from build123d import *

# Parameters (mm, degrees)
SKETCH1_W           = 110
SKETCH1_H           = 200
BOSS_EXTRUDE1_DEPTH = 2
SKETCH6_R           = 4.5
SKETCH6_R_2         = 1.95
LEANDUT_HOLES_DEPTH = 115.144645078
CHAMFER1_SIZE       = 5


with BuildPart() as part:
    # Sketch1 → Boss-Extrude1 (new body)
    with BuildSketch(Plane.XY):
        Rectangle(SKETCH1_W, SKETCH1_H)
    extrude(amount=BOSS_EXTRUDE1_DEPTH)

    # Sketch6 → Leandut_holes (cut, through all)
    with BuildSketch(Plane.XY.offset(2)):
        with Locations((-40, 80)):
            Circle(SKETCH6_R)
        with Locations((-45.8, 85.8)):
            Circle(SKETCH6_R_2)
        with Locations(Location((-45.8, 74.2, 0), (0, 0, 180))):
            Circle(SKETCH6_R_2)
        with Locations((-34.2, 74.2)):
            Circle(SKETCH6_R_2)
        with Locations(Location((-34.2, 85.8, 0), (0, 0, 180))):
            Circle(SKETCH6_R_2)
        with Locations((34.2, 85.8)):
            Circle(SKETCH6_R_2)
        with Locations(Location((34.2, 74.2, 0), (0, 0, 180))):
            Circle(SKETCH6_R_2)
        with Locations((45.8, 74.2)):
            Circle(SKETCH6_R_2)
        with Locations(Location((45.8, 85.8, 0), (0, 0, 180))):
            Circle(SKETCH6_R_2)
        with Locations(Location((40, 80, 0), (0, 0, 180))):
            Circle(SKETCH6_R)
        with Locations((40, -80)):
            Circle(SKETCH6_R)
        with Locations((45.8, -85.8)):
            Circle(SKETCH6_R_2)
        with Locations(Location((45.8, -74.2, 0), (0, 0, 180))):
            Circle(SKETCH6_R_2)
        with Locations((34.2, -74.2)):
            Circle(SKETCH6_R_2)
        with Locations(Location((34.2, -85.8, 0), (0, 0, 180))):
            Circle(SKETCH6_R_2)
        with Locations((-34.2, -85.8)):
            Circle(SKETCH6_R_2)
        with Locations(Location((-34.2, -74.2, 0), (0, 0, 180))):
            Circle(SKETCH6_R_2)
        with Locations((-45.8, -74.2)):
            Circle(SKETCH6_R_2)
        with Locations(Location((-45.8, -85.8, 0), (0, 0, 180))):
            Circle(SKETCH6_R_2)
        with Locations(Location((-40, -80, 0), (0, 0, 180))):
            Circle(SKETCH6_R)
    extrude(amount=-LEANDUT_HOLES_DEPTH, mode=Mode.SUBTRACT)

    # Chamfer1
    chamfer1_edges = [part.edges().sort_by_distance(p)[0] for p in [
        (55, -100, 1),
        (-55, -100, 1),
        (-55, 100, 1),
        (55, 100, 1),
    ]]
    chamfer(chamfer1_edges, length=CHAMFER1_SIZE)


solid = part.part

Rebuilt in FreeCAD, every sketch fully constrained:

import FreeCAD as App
import Part
import Sketcher
from FreeCAD import Vector


def edges_at(feature, points):
    """Names of the edges that pass closest to the given points."""
    edges = feature.Shape.Edges
    near = lambda p: min(range(len(edges)), key=lambda i: edges[i].distToShape(Part.Vertex(*p))[0])
    return sorted({f"Edge{near(p) + 1}" for p in points})

doc = App.newDocument("Part")
params = doc.addObject("Spreadsheet::Sheet", "Params")
for row, (alias, value) in enumerate([
    ("sketch1_width", "110 mm"),
    ("sketch1_height", "200 mm"),
    ("pad1_length", "2 mm"),
    ("sketch2_diameter", "9 mm"),
    ("sketch2_diameter2", "3.9 mm"),
    ("chamfer_size", "5 mm"),
], start=1):
    params.set(f"A{row}", alias)
    params.set(f"B{row}", "=" + value)
    params.setAlias(f"B{row}", alias)

body = doc.addObject("PartDesign::Body", "Body")

# Sketch on XY plane
sketch1 = body.newObject("Sketcher::SketchObject", "Sketch")
sketch1.AttachmentSupport = (doc.getObject("XY_Plane"), [""])
sketch1.MapMode = "FlatFace"
sketch1.addGeometry([
    Part.LineSegment(Vector(-55, 100, 0), Vector(-55, -100, 0)),
    Part.LineSegment(Vector(-55, -100, 0), Vector(55, -100, 0)),
    Part.LineSegment(Vector(55, -100, 0), Vector(55, 100, 0)),
    Part.LineSegment(Vector(55, 100, 0), Vector(-55, 100, 0)),
], False)
sketch1.addConstraint([
    Sketcher.Constraint("Coincident", 0, 2, 1, 1),
    Sketcher.Constraint("Coincident", 1, 2, 2, 1),
    Sketcher.Constraint("Coincident", 2, 2, 3, 1),
    Sketcher.Constraint("Coincident", 3, 2, 0, 1),
    Sketcher.Constraint("Vertical", 0),
    Sketcher.Constraint("Horizontal", 1),
    Sketcher.Constraint("Vertical", 2),
    Sketcher.Constraint("Horizontal", 3),
    Sketcher.Constraint("Symmetric", 0, 2, 2, 2, -1, 1),
    Sketcher.Constraint("DistanceX", 1, 1, 1, 2, 110.0),
    Sketcher.Constraint("DistanceY", 0, 2, 0, 1, 200.0),
])
sketch1.setExpression("Constraints[9]", "Params.sketch1_width")
sketch1.setExpression("Constraints[10]", "Params.sketch1_height")
pad1 = body.newObject("PartDesign::Pad", "Pad")
pad1.Profile = sketch1
pad1.setExpression("Length", "Params.pad1_length")

# Sketch on XY plane
sketch2 = body.newObject("Sketcher::SketchObject", "Sketch001")
sketch2.AttachmentSupport = (doc.getObject("XY_Plane"), [""])
sketch2.MapMode = "FlatFace"
sketch2.AttachmentOffset = App.Placement(Vector(0, 0, 2), App.Rotation())
sketch2.addGeometry([
    Part.Circle(Vector(-40, 80, 0), Vector(0, 0, 1), 4.5),  # 0
    Part.Circle(Vector(-45.8, 85.8, 0), Vector(0, 0, 1), 1.95),  # 1
    Part.Circle(Vector(-45.8, 74.2, 0), Vector(0, 0, 1), 1.95),  # 2
    Part.Circle(Vector(-34.2, 74.2, 0), Vector(0, 0, 1), 1.95),  # 3
    Part.Circle(Vector(-34.2, 85.8, 0), Vector(0, 0, 1), 1.95),  # 4
    Part.Circle(Vector(34.2, 85.8, 0), Vector(0, 0, 1), 1.95),  # 5
    Part.Circle(Vector(34.2, 74.2, 0), Vector(0, 0, 1), 1.95),  # 6
    Part.Circle(Vector(45.8, 74.2, 0), Vector(0, 0, 1), 1.95),  # 7
    Part.Circle(Vector(45.8, 85.8, 0), Vector(0, 0, 1), 1.95),  # 8
    Part.Circle(Vector(40, 80, 0), Vector(0, 0, 1), 4.5),  # 9
    Part.Circle(Vector(40, -80, 0), Vector(0, 0, 1), 4.5),  # 10
    Part.Circle(Vector(45.8, -85.8, 0), Vector(0, 0, 1), 1.95),  # 11
    Part.Circle(Vector(45.8, -74.2, 0), Vector(0, 0, 1), 1.95),  # 12
    Part.Circle(Vector(34.2, -74.2, 0), Vector(0, 0, 1), 1.95),  # 13
    Part.Circle(Vector(34.2, -85.8, 0), Vector(0, 0, 1), 1.95),  # 14
    Part.Circle(Vector(-34.2, -85.8, 0), Vector(0, 0, 1), 1.95),  # 15
    Part.Circle(Vector(-34.2, -74.2, 0), Vector(0, 0, 1), 1.95),  # 16
    Part.Circle(Vector(-45.8, -74.2, 0), Vector(0, 0, 1), 1.95),  # 17
    Part.Circle(Vector(-45.8, -85.8, 0), Vector(0, 0, 1), 1.95),  # 18
    Part.Circle(Vector(-40, -80, 0), Vector(0, 0, 1), 4.5),  # 19
], False)
sketch2.addConstraint([
    Sketcher.Constraint("Equal", 1, 2),
    Sketcher.Constraint("Equal", 2, 3),
    Sketcher.Constraint("Equal", 3, 4),
    Sketcher.Constraint("Equal", 4, 5),
    Sketcher.Constraint("Equal", 5, 6),
    Sketcher.Constraint("Equal", 6, 7),
    Sketcher.Constraint("Equal", 7, 8),
    Sketcher.Constraint("Equal", 0, 9),
    Sketcher.Constraint("Equal", 9, 10),
    Sketcher.Constraint("Equal", 8, 11),
    Sketcher.Constraint("Equal", 11, 12),
    Sketcher.Constraint("Equal", 12, 13),
    Sketcher.Constraint("Equal", 13, 14),
    Sketcher.Constraint("Equal", 14, 15),
    Sketcher.Constraint("Equal", 15, 16),
    Sketcher.Constraint("Equal", 16, 17),
    Sketcher.Constraint("Equal", 17, 18),
    Sketcher.Constraint("Equal", 10, 19),
    Sketcher.Constraint("Symmetric", 0, 3, 10, 3, -1, 1),
    Sketcher.Constraint("Symmetric", 1, 3, 11, 3, -1, 1),
    Sketcher.Constraint("Symmetric", 2, 3, 12, 3, -1, 1),
    Sketcher.Constraint("Symmetric", 3, 3, 13, 3, -1, 1),
    Sketcher.Constraint("Symmetric", 4, 3, 14, 3, -1, 1),
    Sketcher.Constraint("Symmetric", 5, 3, 15, 3, -1, 1),
    Sketcher.Constraint("Symmetric", 6, 3, 16, 3, -1, 1),
    Sketcher.Constraint("Symmetric", 7, 3, 17, 3, -1, 1),
    Sketcher.Constraint("Symmetric", 8, 3, 18, 3, -1, 1),
    Sketcher.Constraint("Symmetric", 9, 3, 19, 3, -1, 1),
    Sketcher.Constraint("Symmetric", 4, 3, 5, 3, -2),
    Sketcher.Constraint("Symmetric", 3, 3, 6, 3, -2),
    Sketcher.Constraint("Symmetric", 2, 3, 7, 3, -2),
    Sketcher.Constraint("Symmetric", 1, 3, 8, 3, -2),
    Sketcher.Constraint("Symmetric", 0, 3, 9, 3, -2),
    Sketcher.Constraint("Horizontal", 2, 3, 3, 3),
    Sketcher.Constraint("Horizontal", 1, 3, 4, 3),
    Sketcher.Constraint("Vertical", 1, 3, 2, 3),
    Sketcher.Constraint("Vertical", 3, 3, 4, 3),
    Sketcher.Constraint("Diameter", 0, 9.0),
    Sketcher.Constraint("Diameter", 1, 3.9),
    Sketcher.Constraint("DistanceX", 0, 3, -1, 1, 40.0),
    Sketcher.Constraint("DistanceY", -1, 1, 0, 3, 80.0),
    Sketcher.Constraint("DistanceX", 1, 3, 5, 3, 80.0),
    Sketcher.Constraint("DistanceY", 11, 3, 7, 3, 160.0),
    Sketcher.Constraint("DistanceX", 1, 3, -1, 1, 45.8),
    Sketcher.Constraint("DistanceY", -1, 1, 1, 3, 85.8),
])
sketch2.setExpression("Constraints[37]", "Params.sketch2_diameter")
sketch2.setExpression("Constraints[38]", "Params.sketch2_diameter2")
pocket1 = body.newObject("PartDesign::Pocket", "Pocket")
pocket1.Profile = sketch2
pocket1.Type = "ThroughAll"
doc.recompute()

chamfer = body.newObject("PartDesign::Chamfer", "Chamfer")
chamfer.Base = (pocket1, edges_at(pocket1, [
    (55, -100, 1),
    (-55, -100, 1),
    (-55, 100, 1),
    (55, 100, 1),
]))
chamfer.setExpression("Size", "Params.chamfer_size")

doc.recompute()
